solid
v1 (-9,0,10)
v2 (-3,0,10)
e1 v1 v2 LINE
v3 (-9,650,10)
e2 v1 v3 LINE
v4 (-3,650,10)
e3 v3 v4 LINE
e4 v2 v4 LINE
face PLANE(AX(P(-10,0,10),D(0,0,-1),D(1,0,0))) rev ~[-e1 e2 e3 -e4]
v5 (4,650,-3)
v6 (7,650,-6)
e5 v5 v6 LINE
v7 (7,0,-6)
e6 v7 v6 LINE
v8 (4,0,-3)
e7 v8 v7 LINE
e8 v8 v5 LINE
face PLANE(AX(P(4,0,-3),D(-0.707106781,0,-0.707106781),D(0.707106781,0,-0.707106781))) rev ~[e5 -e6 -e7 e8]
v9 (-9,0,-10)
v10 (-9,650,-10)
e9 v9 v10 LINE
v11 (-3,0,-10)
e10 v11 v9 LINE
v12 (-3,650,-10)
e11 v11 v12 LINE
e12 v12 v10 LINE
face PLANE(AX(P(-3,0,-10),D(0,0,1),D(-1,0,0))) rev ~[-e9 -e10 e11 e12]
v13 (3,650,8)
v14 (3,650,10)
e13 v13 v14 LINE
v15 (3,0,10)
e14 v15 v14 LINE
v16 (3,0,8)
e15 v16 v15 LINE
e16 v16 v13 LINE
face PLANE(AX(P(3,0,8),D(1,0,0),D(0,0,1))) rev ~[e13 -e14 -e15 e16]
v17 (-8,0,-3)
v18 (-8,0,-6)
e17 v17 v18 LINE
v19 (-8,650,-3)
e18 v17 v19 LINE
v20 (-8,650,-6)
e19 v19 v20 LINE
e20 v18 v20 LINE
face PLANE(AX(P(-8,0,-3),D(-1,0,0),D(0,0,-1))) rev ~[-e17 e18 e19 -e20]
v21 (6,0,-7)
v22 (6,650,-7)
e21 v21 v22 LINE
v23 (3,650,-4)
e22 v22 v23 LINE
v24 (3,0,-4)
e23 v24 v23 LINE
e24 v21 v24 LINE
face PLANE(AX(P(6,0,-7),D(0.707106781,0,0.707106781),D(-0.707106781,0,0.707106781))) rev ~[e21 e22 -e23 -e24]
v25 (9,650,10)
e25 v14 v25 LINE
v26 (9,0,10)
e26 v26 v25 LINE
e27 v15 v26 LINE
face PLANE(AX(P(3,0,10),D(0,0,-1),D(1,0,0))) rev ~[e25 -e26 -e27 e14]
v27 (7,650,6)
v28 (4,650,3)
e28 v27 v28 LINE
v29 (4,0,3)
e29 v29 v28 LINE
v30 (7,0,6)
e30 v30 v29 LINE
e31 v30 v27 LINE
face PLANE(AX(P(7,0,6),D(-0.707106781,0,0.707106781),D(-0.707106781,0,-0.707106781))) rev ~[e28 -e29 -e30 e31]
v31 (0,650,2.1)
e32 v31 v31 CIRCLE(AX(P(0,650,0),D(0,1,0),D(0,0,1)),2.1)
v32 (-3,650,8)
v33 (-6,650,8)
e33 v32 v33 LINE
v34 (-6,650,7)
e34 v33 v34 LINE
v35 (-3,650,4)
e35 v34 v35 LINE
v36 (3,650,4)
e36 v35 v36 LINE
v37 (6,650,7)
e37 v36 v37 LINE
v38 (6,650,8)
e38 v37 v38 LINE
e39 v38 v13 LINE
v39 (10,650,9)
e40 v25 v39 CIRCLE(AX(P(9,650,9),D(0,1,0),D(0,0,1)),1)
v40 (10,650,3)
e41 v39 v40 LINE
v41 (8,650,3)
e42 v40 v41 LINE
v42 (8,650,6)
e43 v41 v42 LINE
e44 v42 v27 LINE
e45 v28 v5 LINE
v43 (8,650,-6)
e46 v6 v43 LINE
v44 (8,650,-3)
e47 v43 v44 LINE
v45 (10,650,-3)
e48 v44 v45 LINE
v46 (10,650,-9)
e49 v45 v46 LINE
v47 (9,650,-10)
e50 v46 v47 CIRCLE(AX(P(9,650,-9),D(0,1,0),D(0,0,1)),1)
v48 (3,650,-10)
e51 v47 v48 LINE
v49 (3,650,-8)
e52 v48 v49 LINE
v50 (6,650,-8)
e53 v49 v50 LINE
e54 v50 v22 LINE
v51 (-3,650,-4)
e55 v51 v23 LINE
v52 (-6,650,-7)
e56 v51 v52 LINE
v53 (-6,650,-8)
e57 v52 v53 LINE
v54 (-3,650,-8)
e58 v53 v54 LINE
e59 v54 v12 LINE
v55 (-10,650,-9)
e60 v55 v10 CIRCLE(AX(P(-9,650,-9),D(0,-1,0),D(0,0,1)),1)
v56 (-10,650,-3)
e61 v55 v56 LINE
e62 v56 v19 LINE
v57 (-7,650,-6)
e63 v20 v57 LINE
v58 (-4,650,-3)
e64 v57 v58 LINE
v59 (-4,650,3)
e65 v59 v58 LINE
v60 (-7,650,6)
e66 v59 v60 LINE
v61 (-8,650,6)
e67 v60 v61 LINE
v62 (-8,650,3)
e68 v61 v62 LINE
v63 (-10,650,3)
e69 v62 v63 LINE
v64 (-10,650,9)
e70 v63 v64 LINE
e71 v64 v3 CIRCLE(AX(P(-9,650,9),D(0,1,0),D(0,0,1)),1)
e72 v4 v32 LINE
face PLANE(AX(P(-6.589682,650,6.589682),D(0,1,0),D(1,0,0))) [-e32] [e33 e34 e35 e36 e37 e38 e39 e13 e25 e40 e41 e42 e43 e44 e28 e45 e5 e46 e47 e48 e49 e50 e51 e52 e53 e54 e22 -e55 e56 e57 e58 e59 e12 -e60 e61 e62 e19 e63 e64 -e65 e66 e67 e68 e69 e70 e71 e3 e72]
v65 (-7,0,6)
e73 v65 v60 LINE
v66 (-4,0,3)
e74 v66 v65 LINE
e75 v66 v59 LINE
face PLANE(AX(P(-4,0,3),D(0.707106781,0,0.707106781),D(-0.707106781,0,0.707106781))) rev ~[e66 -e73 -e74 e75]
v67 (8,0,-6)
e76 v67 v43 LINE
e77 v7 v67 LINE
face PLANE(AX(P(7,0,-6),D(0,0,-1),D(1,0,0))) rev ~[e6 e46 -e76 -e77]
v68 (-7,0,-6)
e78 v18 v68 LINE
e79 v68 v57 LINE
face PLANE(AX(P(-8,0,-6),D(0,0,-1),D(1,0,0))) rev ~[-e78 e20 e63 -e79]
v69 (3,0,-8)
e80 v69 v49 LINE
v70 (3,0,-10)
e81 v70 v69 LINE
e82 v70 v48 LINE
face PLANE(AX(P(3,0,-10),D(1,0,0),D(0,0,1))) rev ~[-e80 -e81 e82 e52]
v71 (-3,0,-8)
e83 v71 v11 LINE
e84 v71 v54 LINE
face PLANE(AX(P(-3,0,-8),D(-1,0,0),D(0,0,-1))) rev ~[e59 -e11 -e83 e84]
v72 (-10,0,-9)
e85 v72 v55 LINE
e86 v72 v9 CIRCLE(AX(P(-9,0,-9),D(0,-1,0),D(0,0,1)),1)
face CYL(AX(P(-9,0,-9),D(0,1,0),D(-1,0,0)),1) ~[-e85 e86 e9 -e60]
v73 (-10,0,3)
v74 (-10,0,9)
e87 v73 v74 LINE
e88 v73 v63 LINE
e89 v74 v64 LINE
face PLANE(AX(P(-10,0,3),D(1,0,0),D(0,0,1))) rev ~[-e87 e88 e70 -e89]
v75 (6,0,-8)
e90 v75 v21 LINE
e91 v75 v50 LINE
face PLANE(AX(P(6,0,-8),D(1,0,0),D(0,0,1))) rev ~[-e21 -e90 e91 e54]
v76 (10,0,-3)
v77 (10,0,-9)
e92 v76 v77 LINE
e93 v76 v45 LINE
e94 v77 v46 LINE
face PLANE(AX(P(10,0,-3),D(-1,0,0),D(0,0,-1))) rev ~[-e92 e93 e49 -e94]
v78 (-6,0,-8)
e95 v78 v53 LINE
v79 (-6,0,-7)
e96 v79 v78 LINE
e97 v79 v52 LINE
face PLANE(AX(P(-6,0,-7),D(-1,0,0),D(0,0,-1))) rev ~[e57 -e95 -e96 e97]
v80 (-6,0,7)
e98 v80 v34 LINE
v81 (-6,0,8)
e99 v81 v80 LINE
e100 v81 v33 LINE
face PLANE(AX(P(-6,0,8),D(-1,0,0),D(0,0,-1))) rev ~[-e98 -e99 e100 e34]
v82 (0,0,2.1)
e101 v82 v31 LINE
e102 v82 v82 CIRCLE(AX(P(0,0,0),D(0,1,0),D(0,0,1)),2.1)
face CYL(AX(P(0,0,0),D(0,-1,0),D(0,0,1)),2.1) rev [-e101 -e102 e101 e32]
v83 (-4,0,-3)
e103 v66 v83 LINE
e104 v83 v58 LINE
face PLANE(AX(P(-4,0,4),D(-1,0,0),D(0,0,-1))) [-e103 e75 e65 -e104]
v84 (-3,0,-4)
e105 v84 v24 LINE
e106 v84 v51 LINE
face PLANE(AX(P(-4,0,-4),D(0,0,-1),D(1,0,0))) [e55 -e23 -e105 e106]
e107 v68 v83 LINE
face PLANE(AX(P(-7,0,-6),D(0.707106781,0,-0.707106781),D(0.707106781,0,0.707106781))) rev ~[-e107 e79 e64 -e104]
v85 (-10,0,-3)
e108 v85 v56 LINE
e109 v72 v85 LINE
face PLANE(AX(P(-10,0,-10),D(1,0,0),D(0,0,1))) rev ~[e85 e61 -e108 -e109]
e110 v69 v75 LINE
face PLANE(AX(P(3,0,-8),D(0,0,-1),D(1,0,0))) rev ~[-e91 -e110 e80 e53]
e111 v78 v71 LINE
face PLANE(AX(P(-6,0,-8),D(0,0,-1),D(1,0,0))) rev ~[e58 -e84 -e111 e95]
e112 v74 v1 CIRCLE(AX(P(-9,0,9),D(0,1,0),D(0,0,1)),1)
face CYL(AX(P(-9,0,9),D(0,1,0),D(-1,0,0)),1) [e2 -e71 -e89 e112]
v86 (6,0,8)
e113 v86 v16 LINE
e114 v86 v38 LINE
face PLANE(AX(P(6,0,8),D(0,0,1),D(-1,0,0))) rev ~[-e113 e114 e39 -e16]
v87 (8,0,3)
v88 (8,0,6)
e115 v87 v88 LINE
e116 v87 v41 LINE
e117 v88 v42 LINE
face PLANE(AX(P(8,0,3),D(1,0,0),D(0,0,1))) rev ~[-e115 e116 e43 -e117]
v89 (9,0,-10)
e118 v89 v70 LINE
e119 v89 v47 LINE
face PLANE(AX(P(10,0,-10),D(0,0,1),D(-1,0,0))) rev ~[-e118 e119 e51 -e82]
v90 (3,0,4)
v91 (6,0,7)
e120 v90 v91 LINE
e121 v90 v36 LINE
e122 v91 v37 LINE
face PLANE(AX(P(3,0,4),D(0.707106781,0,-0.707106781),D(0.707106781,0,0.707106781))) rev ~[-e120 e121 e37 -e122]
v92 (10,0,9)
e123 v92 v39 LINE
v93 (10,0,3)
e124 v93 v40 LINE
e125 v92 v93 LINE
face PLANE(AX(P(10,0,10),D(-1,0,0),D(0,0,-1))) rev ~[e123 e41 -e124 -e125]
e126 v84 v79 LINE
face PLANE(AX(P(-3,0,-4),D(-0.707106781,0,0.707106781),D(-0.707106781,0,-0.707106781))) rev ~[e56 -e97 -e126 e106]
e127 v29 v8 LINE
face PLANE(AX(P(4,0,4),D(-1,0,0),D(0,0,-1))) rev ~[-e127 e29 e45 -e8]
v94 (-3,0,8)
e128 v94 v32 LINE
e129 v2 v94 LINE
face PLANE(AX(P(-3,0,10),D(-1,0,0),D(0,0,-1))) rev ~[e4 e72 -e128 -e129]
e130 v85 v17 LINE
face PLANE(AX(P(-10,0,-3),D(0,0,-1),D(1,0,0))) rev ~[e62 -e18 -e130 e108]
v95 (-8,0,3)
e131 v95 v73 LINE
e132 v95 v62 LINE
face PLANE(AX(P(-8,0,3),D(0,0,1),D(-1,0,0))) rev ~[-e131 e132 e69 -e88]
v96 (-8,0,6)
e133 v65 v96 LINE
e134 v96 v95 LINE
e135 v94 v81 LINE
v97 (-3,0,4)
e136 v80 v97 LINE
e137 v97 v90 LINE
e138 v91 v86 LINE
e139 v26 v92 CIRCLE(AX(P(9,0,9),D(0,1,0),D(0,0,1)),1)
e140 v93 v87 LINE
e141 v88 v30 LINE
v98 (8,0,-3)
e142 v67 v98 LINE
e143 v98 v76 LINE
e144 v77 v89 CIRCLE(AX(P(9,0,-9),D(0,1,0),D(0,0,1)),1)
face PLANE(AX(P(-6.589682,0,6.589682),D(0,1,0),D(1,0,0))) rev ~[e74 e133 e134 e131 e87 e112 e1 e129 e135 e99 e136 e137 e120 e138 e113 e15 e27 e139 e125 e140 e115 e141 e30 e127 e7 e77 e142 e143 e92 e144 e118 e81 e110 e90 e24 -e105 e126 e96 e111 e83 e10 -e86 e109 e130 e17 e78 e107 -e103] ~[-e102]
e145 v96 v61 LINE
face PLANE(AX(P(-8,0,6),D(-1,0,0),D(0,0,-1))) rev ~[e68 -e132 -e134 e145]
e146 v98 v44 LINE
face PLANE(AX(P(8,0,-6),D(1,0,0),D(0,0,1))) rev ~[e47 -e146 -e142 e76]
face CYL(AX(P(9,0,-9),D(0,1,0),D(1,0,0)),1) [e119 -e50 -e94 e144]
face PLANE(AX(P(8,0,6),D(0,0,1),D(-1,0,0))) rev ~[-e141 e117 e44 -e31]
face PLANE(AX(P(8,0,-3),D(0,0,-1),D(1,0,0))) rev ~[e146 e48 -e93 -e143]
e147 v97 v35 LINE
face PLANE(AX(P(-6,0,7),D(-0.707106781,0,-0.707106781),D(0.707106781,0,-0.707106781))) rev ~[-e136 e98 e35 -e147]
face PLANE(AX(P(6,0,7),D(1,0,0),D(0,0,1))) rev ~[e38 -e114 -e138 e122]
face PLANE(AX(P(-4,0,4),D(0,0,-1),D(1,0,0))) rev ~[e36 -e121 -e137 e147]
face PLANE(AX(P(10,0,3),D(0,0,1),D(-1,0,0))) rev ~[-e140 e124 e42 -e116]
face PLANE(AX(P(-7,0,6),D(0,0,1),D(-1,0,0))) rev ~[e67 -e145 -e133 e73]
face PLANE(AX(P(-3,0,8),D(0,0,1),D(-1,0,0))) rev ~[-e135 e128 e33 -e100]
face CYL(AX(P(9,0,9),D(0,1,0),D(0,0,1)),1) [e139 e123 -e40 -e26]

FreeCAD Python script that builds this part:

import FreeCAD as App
import Part
import Sketcher
from FreeCAD import Vector
Q = App.Units.Quantity


def edges_at(feature, points):
    """Names of the edges that pass closest to the given points."""
    edges = feature.Shape.Edges
    near = lambda p: min(range(len(edges)), key=lambda i: edges[i].distToShape(Part.Vertex(*p))[0])
    return sorted({f"Edge{near(p) + 1}" for p in points})


def add_polygon(sketch, points):
    """Adds a closed chain of lines whose ends are joined by coincident constraints."""
    first, n = sketch.GeometryCount, len(points)
    for a, b in zip(points, points[1:] + points[:1]):
        sketch.addGeometry(Part.LineSegment(App.Vector(*a, 0), App.Vector(*b, 0)), False)
    for i in range(n):
        sketch.addConstraint(Sketcher.Constraint("Coincident", first + i, 2, first + (i + 1) % n, 1))

doc = App.newDocument("Part")
params = doc.addObject("Spreadsheet::Sheet", "Params")
for row, (alias, value) in enumerate([
    ("sketch1_diameter", "4.2 mm"),
    ("sketch1_width", "2 mm"),
    ("sketch1_width2", "1 mm"),
    ("sketch1_width3", "7 mm"),
    ("sketch1_width4", "3 mm"),
    ("pad1_length", "650 mm"),
    ("fillet_radius", "1 mm"),
], start=1):
    params.set(f"A{row}", alias)
    params.set(f"B{row}", "=" + value)
    params.setAlias(f"B{row}", alias)

body = doc.addObject("PartDesign::Body", "Body")

sketch1 = doc.addObject("Sketcher::SketchObject", "Sketch")
body.addObject(sketch1)
sketch1.AttachmentSupport = (doc.XZ_Plane, [""])
sketch1.MapMode = "FlatFace"
add_polygon(sketch1, [(-10, -10), (-10, -3), (-8, -3), (-8, -6), (-7, -6), (-4, -3), (-4, 3), (-7, 6), (-8, 6), (-8, 3), (-10, 3), (-10, 10), (-3, 10), (-3, 8), (-6, 8), (-6, 7), (-3, 4), (3, 4), (6, 7), (6, 8), (3, 8), (3, 10), (10, 10), (10, 3), (8, 3), (8, 6), (7, 6), (4, 3), (4, -3), (7, -6), (8, -6), (8, -3), (10, -3), (10, -10), (3, -10), (3, -8), (6, -8), (6, -7), (3, -4), (-3, -4), (-6, -7), (-6, -8), (-3, -8), (-3, -10)])
sketch1.addGeometry(Part.Circle(Vector(0, 0, 0), Vector(0, 0, 1), 2.1), False)
sketch1.addConstraint(Sketcher.Constraint("Vertical", 0))
sketch1.addConstraint(Sketcher.Constraint("Horizontal", 1))
sketch1.addConstraint(Sketcher.Constraint("Vertical", 2))
sketch1.addConstraint(Sketcher.Constraint("Horizontal", 3))
sketch1.addConstraint(Sketcher.Constraint("Vertical", 5))
sketch1.addConstraint(Sketcher.Constraint("Horizontal", 7))
sketch1.addConstraint(Sketcher.Constraint("Vertical", 8))
sketch1.addConstraint(Sketcher.Constraint("Horizontal", 9))
sketch1.addConstraint(Sketcher.Constraint("Vertical", 10))
sketch1.addConstraint(Sketcher.Constraint("Horizontal", 11))
sketch1.addConstraint(Sketcher.Constraint("Vertical", 12))
sketch1.addConstraint(Sketcher.Constraint("Horizontal", 13))
sketch1.addConstraint(Sketcher.Constraint("Vertical", 14))
sketch1.addConstraint(Sketcher.Constraint("Horizontal", 16))
sketch1.addConstraint(Sketcher.Constraint("Vertical", 18))
sketch1.addConstraint(Sketcher.Constraint("Horizontal", 19))
sketch1.addConstraint(Sketcher.Constraint("Vertical", 20))
sketch1.addConstraint(Sketcher.Constraint("Horizontal", 21))
sketch1.addConstraint(Sketcher.Constraint("Vertical", 22))
sketch1.addConstraint(Sketcher.Constraint("Horizontal", 23))
sketch1.addConstraint(Sketcher.Constraint("Vertical", 24))
sketch1.addConstraint(Sketcher.Constraint("Horizontal", 25))
sketch1.addConstraint(Sketcher.Constraint("Vertical", 27))
sketch1.addConstraint(Sketcher.Constraint("Horizontal", 29))
sketch1.addConstraint(Sketcher.Constraint("Vertical", 30))
sketch1.addConstraint(Sketcher.Constraint("Horizontal", 31))
sketch1.addConstraint(Sketcher.Constraint("Vertical", 32))
sketch1.addConstraint(Sketcher.Constraint("Horizontal", 33))
sketch1.addConstraint(Sketcher.Constraint("Vertical", 34))
sketch1.addConstraint(Sketcher.Constraint("Horizontal", 35))
sketch1.addConstraint(Sketcher.Constraint("Vertical", 36))
sketch1.addConstraint(Sketcher.Constraint("Horizontal", 38))
sketch1.addConstraint(Sketcher.Constraint("Vertical", 40))
sketch1.addConstraint(Sketcher.Constraint("Horizontal", 41))
sketch1.addConstraint(Sketcher.Constraint("Vertical", 42))
sketch1.addConstraint(Sketcher.Constraint("Horizontal", 43))
sketch1.addConstraint(Sketcher.Constraint("Coincident", 44, 3, -1, 1))
sketch1.addConstraint(Sketcher.Constraint("Symmetric", 0, 2, 22, 2, -1, 1))
sketch1.addConstraint(Sketcher.Constraint("Symmetric", 2, 2, 24, 2, -1, 1))
sketch1.addConstraint(Sketcher.Constraint("Symmetric", 4, 2, 26, 2, -1, 1))
sketch1.addConstraint(Sketcher.Constraint("Symmetric", 6, 2, 28, 2, -1, 1))
sketch1.addConstraint(Sketcher.Constraint("Symmetric", 8, 2, 30, 2, -1, 1))
sketch1.addConstraint(Sketcher.Constraint("Symmetric", 10, 2, 32, 2, -1, 1))
sketch1.addConstraint(Sketcher.Constraint("Symmetric", 12, 2, 34, 2, -1, 1))
sketch1.addConstraint(Sketcher.Constraint("Symmetric", 14, 2, 36, 2, -1, 1))
sketch1.addConstraint(Sketcher.Constraint("Symmetric", 15, 2, 37, 2, -1, 1))
sketch1.addConstraint(Sketcher.Constraint("Symmetric", 17, 2, 39, 2, -1, 1))
sketch1.addConstraint(Sketcher.Constraint("Symmetric", 19, 2, 41, 2, -1, 1))
sketch1.addConstraint(Sketcher.Constraint("Symmetric", 14, 2, 17, 2, -2))
sketch1.addConstraint(Sketcher.Constraint("Symmetric", 12, 2, 19, 2, -2))
sketch1.addConstraint(Sketcher.Constraint("Symmetric", 10, 2, 21, 2, -2))
sketch1.addConstraint(Sketcher.Constraint("Symmetric", 8, 2, 23, 2, -2))
sketch1.addConstraint(Sketcher.Constraint("Symmetric", 6, 2, 25, 2, -2))
sketch1.addConstraint(Sketcher.Constraint("Perpendicular", 4, 6))
sketch1.addConstraint(Sketcher.Constraint("Parallel", 6, 15))
sketch1.addConstraint(Sketcher.Constraint("Perpendicular", 15, 17))
sketch1.addConstraint(Sketcher.Constraint("Parallel", 17, 26))
sketch1.addConstraint(Sketcher.Constraint("Perpendicular", 26, 28))
sketch1.addConstraint(Sketcher.Constraint("Perpendicular", 37, 39))
sketch1.addConstraint(Sketcher.Constraint("Horizontal", 1, 2, 4, 2))
sketch1.addConstraint(Sketcher.Constraint("Horizontal", 5, 2, 8, 2))
sketch1.addConstraint(Sketcher.Constraint("Horizontal", 33, 2, 42, 2))
sketch1.addConstraint(Sketcher.Constraint("Vertical", 12, 2, 15, 2))
sketch1.addConstraint(Sketcher.Constraint("Equal", 43, 0))
sketch1.addConstraint(Sketcher.Constraint("Equal", 41, 2))
sketch1.addConstraint(Sketcher.Constraint("Equal", 38, 5))
sketch1.addConstraint(Sketcher.Constraint("Equal", 31, 12))
sketch1.addConstraint(Sketcher.Constraint("Equal", 29, 14))
sketch1.addConstraint(Sketcher.Constraint("Diameter", 44, Q("4.2 mm")))
sketch1.addConstraint(Sketcher.Constraint("DistanceX", 1, 1, 1, 2, Q("2 mm")))
sketch1.addConstraint(Sketcher.Constraint("DistanceX", 3, 1, 3, 2, Q("1 mm")))
sketch1.addConstraint(Sketcher.Constraint("DistanceX", 11, 1, 11, 2, Q("7 mm")))
sketch1.addConstraint(Sketcher.Constraint("DistanceX", 13, 2, 13, 1, Q("3 mm")))
sketch1.addConstraint(Sketcher.Constraint("DistanceX", 16, 1, 16, 2, Q("6 mm")))
sketch1.setExpression("Constraints[112]", "Params.sketch1_diameter")
sketch1.setExpression("Constraints[113]", "Params.sketch1_width")
sketch1.setExpression("Constraints[114]", "Params.sketch1_width2")
sketch1.setExpression("Constraints[115]", "Params.sketch1_width3")
sketch1.setExpression("Constraints[116]", "Params.sketch1_width4")
pad1 = doc.addObject("PartDesign::Pad", "Pad")
body.addObject(pad1)
pad1.Profile = sketch1
pad1.setExpression("Length", "Params.pad1_length")
pad1.Reversed = True
doc.recompute()

fillet = doc.addObject("PartDesign::Fillet", "Fillet")
body.addObject(fillet)
fillet.Base = (pad1, edges_at(pad1, [
    (-10, 325, 10),
    (-10, 325, -10),
    (10, 325, -10),
    (10, 325, 10),
]))
fillet.setExpression("Radius", "Params.fillet_radius")

doc.recompute()
